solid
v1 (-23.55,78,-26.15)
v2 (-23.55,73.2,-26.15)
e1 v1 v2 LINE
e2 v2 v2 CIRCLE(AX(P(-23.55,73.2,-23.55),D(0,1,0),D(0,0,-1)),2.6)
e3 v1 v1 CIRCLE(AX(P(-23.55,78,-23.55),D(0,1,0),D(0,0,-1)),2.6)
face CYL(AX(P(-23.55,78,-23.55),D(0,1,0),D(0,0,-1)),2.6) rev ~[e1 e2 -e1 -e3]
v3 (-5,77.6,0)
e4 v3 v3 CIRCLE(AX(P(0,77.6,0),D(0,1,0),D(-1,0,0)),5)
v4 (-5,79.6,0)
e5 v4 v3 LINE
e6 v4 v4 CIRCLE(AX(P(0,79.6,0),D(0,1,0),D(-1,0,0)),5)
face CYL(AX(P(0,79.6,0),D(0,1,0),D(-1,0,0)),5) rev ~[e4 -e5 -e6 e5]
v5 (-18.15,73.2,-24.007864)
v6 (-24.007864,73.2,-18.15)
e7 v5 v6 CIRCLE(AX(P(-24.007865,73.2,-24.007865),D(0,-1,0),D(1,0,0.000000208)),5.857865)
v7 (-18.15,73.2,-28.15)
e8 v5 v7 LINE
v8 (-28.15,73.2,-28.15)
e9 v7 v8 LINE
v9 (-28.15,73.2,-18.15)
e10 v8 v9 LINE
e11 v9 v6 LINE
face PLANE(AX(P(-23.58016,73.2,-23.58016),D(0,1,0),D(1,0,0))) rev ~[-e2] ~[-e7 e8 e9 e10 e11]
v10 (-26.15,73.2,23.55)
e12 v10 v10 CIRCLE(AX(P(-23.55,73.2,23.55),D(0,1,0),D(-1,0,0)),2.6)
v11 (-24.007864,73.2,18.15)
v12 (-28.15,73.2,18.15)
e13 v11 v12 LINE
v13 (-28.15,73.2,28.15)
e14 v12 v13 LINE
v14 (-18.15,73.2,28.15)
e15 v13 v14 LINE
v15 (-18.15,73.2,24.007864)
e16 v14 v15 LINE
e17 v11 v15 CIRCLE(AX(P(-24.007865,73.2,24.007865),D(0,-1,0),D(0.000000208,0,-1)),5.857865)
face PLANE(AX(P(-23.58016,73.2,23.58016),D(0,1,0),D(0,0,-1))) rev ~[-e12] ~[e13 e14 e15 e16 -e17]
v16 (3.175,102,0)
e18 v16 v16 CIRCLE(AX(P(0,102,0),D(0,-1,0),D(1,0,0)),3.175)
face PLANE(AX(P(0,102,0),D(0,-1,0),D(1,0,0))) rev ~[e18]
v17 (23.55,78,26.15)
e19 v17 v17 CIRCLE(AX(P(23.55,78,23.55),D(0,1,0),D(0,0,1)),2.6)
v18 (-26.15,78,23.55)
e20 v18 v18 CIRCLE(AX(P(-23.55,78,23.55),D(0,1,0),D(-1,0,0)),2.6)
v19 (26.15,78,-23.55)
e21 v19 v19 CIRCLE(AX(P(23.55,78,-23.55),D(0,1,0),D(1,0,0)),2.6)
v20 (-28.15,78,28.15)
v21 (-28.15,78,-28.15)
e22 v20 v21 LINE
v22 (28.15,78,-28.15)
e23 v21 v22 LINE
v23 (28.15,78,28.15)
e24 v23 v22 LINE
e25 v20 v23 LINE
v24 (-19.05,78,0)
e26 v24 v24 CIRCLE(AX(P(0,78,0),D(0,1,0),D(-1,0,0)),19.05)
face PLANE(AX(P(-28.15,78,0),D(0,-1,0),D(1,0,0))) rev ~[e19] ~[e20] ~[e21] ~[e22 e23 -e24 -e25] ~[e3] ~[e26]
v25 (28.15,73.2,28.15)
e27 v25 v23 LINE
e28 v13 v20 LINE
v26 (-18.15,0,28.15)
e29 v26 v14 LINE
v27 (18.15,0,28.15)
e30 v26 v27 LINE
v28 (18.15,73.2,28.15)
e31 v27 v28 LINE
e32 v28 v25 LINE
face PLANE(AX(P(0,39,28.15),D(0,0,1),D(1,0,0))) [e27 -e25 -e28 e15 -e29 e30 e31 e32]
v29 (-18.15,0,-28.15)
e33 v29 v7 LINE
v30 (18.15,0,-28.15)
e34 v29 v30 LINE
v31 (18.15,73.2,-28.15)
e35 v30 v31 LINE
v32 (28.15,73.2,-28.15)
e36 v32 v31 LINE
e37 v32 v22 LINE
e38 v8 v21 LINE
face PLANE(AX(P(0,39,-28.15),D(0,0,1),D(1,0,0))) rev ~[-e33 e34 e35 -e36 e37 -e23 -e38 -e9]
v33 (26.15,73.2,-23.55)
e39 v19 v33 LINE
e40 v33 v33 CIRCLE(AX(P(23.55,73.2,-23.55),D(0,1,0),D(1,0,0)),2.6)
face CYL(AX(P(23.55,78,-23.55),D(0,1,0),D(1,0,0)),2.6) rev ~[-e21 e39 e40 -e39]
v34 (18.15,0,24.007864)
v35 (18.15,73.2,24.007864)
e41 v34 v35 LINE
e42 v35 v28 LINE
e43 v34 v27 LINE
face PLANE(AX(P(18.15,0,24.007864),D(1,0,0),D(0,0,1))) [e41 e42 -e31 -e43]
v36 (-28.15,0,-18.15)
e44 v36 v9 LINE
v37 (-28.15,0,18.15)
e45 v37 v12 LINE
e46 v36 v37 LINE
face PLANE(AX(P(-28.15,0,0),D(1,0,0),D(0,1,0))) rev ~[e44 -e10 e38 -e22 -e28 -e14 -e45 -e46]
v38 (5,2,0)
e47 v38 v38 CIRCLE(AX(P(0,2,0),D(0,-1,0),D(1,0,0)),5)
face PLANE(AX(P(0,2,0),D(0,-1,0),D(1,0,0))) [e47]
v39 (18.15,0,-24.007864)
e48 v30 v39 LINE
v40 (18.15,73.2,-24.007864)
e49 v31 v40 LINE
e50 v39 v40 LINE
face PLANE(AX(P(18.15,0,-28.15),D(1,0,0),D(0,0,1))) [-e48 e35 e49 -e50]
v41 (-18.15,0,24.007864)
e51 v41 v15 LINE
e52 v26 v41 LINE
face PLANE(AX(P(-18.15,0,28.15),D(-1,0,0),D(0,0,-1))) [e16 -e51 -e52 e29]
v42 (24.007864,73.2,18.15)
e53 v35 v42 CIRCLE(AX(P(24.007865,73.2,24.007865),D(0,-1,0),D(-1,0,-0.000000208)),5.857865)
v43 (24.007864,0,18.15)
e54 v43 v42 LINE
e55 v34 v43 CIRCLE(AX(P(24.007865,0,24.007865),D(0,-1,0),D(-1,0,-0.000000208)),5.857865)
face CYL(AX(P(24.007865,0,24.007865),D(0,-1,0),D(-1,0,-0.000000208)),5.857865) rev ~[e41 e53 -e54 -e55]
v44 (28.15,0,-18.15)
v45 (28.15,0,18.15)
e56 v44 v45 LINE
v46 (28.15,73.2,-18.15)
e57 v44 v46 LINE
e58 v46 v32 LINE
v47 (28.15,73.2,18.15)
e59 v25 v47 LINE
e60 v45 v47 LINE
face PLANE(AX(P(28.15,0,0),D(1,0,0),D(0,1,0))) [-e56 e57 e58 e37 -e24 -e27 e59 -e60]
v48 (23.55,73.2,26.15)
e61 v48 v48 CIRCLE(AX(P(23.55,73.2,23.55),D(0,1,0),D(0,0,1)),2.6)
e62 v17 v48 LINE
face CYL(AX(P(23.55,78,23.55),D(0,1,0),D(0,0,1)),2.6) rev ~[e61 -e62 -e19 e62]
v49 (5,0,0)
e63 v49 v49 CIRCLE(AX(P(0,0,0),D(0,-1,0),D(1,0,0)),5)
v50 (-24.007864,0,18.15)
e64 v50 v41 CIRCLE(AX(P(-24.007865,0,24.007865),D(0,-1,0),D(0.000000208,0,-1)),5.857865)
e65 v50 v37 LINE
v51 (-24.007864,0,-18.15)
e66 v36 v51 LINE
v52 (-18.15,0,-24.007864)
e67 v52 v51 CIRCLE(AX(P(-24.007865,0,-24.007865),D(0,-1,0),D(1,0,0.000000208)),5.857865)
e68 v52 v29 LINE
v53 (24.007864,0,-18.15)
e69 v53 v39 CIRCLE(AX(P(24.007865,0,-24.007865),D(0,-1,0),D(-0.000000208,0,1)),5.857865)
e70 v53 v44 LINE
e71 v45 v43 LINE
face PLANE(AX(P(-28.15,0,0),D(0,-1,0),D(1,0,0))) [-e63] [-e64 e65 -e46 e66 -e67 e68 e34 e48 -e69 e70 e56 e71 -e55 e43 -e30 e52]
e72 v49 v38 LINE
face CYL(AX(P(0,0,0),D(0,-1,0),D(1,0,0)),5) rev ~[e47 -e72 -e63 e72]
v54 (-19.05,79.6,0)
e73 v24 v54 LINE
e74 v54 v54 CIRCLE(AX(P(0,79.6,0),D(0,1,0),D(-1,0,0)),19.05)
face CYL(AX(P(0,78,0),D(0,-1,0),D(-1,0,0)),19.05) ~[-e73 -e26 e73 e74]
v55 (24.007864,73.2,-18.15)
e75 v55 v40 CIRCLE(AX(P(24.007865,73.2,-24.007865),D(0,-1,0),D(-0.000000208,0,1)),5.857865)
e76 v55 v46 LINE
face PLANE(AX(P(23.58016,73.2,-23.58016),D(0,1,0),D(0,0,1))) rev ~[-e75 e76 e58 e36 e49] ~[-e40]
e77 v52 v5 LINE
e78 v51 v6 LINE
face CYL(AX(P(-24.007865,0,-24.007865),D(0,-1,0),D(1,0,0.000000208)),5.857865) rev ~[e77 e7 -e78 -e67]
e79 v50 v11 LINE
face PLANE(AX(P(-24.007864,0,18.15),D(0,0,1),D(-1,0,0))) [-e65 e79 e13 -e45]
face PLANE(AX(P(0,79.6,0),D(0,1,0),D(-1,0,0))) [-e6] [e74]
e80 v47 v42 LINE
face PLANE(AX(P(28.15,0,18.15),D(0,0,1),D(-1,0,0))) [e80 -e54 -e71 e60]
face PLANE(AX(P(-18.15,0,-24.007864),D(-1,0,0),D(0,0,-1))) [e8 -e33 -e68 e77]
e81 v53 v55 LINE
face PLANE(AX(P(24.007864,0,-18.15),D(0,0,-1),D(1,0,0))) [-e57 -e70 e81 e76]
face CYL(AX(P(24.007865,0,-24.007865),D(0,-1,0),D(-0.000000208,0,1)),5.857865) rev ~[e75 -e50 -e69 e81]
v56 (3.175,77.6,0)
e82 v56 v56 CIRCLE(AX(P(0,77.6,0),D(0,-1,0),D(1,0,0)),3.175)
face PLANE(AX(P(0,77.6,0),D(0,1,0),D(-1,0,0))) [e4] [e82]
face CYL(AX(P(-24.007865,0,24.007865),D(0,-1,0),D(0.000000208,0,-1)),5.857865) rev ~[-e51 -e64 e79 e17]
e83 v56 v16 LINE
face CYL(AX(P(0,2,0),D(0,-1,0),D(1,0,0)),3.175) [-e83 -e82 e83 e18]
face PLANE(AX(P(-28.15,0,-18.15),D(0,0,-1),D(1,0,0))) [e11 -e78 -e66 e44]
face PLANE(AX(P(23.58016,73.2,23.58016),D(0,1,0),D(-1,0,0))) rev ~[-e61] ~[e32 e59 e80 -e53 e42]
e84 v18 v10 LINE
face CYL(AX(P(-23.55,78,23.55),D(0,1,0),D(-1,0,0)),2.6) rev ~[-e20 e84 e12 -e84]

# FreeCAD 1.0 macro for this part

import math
import FreeCAD as App
import Part
import Sketcher
from FreeCAD import Vector
Q = App.Units.Quantity

doc = App.newDocument("Part")
body = doc.addObject("PartDesign::Body", "Body")

# Sketch on XY plane
sketch1 = body.newObject("Sketcher::SketchObject", "Sketch")
sketch1.AttachmentSupport = (doc.getObject("XY_Plane"), [""])
sketch1.MapMode = "FlatFace"
sketch1.addGeometry(Part.LineSegment(Vector(-28.15, 78, 0), Vector(-28.15, 0, 0)), False)
sketch1.addGeometry(Part.LineSegment(Vector(-28.15, 0, 0), Vector(28.15, 0, 0)), False)
sketch1.addGeometry(Part.LineSegment(Vector(28.15, 0, 0), Vector(28.15, 78, 0)), False)
sketch1.addGeometry(Part.LineSegment(Vector(28.15, 78, 0), Vector(-28.15, 78, 0)), False)
sketch1.addConstraint(Sketcher.Constraint("Coincident", 0, 2, 1, 1))
sketch1.addConstraint(Sketcher.Constraint("Coincident", 1, 2, 2, 1))
sketch1.addConstraint(Sketcher.Constraint("Coincident", 2, 2, 3, 1))
sketch1.addConstraint(Sketcher.Constraint("Coincident", 3, 2, 0, 1))
sketch1.addConstraint(Sketcher.Constraint("Vertical", 0))
sketch1.addConstraint(Sketcher.Constraint("Horizontal", 1))
sketch1.addConstraint(Sketcher.Constraint("Vertical", 2))
sketch1.addConstraint(Sketcher.Constraint("Horizontal", 3))
sketch1.addConstraint(Sketcher.Constraint("Symmetric", 0, 2, 1, 2, -1, 1))
sketch1.addConstraint(Sketcher.Constraint("DistanceY", 0, 2, 0, 1, Q("78 mm")))
sketch1.addConstraint(Sketcher.Constraint("DistanceX", 1, 1, 1, 2, Q("56.3 mm")))
pad1 = body.newObject("PartDesign::Pad", "Pad")
pad1.Profile = sketch1
pad1.Type = "TwoLengths"
pad1.Length = 28.15
pad1.Length2 = 28.15

# Sketch on XZ plane
sketch2 = body.newObject("Sketcher::SketchObject", "Sketch001")
sketch2.AttachmentSupport = (doc.getObject("XZ_Plane"), [""])
sketch2.MapMode = "FlatFace"
sketch2.addGeometry(Part.LineSegment(Vector(28.15, 28.15, 0), Vector(18.15, 28.15, 0)), False)
sketch2.addGeometry(Part.LineSegment(Vector(18.15, 28.15, 0), Vector(18.15, 24.007864, 0)), False)
sketch2.addGeometry(Part.ArcOfCircle(Part.Circle(Vector(24.007865, 24.007865, 0), Vector(0, 0, 1), 5.857865), math.radians(-179.999988), math.radians(-90.000012)), False)
sketch2.addGeometry(Part.LineSegment(Vector(24.007864, 18.15, 0), Vector(28.15, 18.15, 0)), False)
sketch2.addGeometry(Part.LineSegment(Vector(28.15, 18.15, 0), Vector(28.15, 28.15, 0)), False)
sketch2.addConstraint(Sketcher.Constraint("Coincident", 0, 2, 1, 1))
sketch2.addConstraint(Sketcher.Constraint("Tangent", 1, 2, 2, 1))
sketch2.addConstraint(Sketcher.Constraint("Tangent", 2, 2, 3, 1))
sketch2.addConstraint(Sketcher.Constraint("Coincident", 3, 2, 4, 1))
sketch2.addConstraint(Sketcher.Constraint("Coincident", 4, 2, 0, 1))
sketch2.addConstraint(Sketcher.Constraint("Horizontal", 0))
sketch2.addConstraint(Sketcher.Constraint("Vertical", 1))
sketch2.addConstraint(Sketcher.Constraint("Horizontal", 3))
sketch2.addConstraint(Sketcher.Constraint("Vertical", 4))
sketch2.addConstraint(Sketcher.Constraint("Equal", 3, 1))
sketch2.addConstraint(Sketcher.Constraint("DistanceX", 0, 2, 0, 1, Q("10 mm")))
sketch2.addConstraint(Sketcher.Constraint("DistanceX", -1, 1, 0, 2, Q("18.15 mm")))
sketch2.addConstraint(Sketcher.Constraint("DistanceY", -1, 1, 0, 2, Q("28.15 mm")))
sketch2.addConstraint(Sketcher.Constraint("Radius", 2, Q("5.857865 mm")))
pocket1 = body.newObject("PartDesign::Pocket", "Pocket")
pocket1.Profile = sketch2
pocket1.Length = 73.2
doc.recompute()

polarpattern = body.newObject("PartDesign::PolarPattern", "PolarPattern")
polarpattern.Originals = [pocket1]
polarpattern.Axis = (doc.getObject("Y_Axis"), [""])
polarpattern.Angle = 360
polarpattern.Occurrences = 4
body.Tip = polarpattern

# Sketch on XZ plane
sketch3 = body.newObject("Sketcher::SketchObject", "Sketch002")
sketch3.AttachmentSupport = (doc.getObject("XZ_Plane"), [""])
sketch3.MapMode = "FlatFace"
sketch3.AttachmentOffset = App.Placement(Vector(0, 0, -78), App.Rotation())
sketch3.addGeometry(Part.Circle(Vector(-23.55, 23.55, 0), Vector(0, 0, 1), 2.6), False)
sketch3.addConstraint(Sketcher.Constraint("Diameter", 0, Q("5.2 mm")))
sketch3.addConstraint(Sketcher.Constraint("DistanceX", 0, 3, -1, 1, Q("23.55 mm")))
sketch3.addConstraint(Sketcher.Constraint("DistanceY", -1, 1, 0, 3, Q("23.55 mm")))
pocket2 = body.newObject("PartDesign::Pocket", "Pocket001")
pocket2.Profile = sketch3
pocket2.Length = 5
pocket2.Reversed = True
doc.recompute()

polarpattern2 = body.newObject("PartDesign::PolarPattern", "PolarPattern001")
polarpattern2.Originals = [pocket2]
polarpattern2.Axis = (doc.getObject("Y_Axis"), [""])
polarpattern2.Angle = 360
polarpattern2.Occurrences = 4
body.Tip = polarpattern2

# Sketch on XZ plane
sketch4 = body.newObject("Sketcher::SketchObject", "Sketch003")
sketch4.AttachmentSupport = (doc.getObject("XZ_Plane"), [""])
sketch4.MapMode = "FlatFace"
sketch4.AttachmentOffset = App.Placement(Vector(0, 0, -78), App.Rotation())
sketch4.addGeometry(Part.Circle(Vector(0, 0, 0), Vector(0, 0, 1), 19.05), False)
sketch4.addConstraint(Sketcher.Constraint("Coincident", 0, 3, -1, 1))
sketch4.addConstraint(Sketcher.Constraint("Diameter", 0, Q("38.1 mm")))
pad2 = body.newObject("PartDesign::Pad", "Pad001")
pad2.Profile = sketch4
pad2.Length = 1.6
pad2.Reversed = True

# Sketch on XZ plane
sketch5 = body.newObject("Sketcher::SketchObject", "Sketch004")
sketch5.AttachmentSupport = (doc.getObject("XZ_Plane"), [""])
sketch5.MapMode = "FlatFace"
sketch5.AttachmentOffset = App.Placement(Vector(0, 0, -79.6), App.Rotation())
sketch5.addGeometry(Part.Circle(Vector(0, 0, 0), Vector(0, 0, 1), 5), False)
sketch5.addConstraint(Sketcher.Constraint("Coincident", 0, 3, -1, 1))
sketch5.addConstraint(Sketcher.Constraint("Diameter", 0, Q("10 mm")))
pocket3 = body.newObject("PartDesign::Pocket", "Pocket002")
pocket3.Profile = sketch5
pocket3.Length = 2
pocket3.Reversed = True

# Sketch on XZ plane
sketch6 = body.newObject("Sketcher::SketchObject", "Sketch005")
sketch6.AttachmentSupport = (doc.getObject("XZ_Plane"), [""])
sketch6.MapMode = "FlatFace"
sketch6.addGeometry(Part.Circle(Vector(0, 0, 0), Vector(0, 0, 1), 5), False)
sketch6.addConstraint(Sketcher.Constraint("Coincident", 0, 3, -1, 1))
sketch6.addConstraint(Sketcher.Constraint("Diameter", 0, Q("10 mm")))
pocket4 = body.newObject("PartDesign::Pocket", "Pocket003")
pocket4.Profile = sketch6
pocket4.Length = 2

# Sketch on XZ plane
sketch7 = body.newObject("Sketcher::SketchObject", "Sketch006")
sketch7.AttachmentSupport = (doc.getObject("XZ_Plane"), [""])
sketch7.MapMode = "FlatFace"
sketch7.AttachmentOffset = App.Placement(Vector(0, 0, -2), App.Rotation())
sketch7.addGeometry(Part.Circle(Vector(0, 0, 0), Vector(0, 0, 1), 3.175), False)
sketch7.addConstraint(Sketcher.Constraint("Coincident", 0, 3, -1, 1))
sketch7.addConstraint(Sketcher.Constraint("Diameter", 0, Q("6.35 mm")))
pad3 = body.newObject("PartDesign::Pad", "Pad002")
pad3.Profile = sketch7
pad3.Length = 100
pad3.Reversed = True

doc.recompute()
